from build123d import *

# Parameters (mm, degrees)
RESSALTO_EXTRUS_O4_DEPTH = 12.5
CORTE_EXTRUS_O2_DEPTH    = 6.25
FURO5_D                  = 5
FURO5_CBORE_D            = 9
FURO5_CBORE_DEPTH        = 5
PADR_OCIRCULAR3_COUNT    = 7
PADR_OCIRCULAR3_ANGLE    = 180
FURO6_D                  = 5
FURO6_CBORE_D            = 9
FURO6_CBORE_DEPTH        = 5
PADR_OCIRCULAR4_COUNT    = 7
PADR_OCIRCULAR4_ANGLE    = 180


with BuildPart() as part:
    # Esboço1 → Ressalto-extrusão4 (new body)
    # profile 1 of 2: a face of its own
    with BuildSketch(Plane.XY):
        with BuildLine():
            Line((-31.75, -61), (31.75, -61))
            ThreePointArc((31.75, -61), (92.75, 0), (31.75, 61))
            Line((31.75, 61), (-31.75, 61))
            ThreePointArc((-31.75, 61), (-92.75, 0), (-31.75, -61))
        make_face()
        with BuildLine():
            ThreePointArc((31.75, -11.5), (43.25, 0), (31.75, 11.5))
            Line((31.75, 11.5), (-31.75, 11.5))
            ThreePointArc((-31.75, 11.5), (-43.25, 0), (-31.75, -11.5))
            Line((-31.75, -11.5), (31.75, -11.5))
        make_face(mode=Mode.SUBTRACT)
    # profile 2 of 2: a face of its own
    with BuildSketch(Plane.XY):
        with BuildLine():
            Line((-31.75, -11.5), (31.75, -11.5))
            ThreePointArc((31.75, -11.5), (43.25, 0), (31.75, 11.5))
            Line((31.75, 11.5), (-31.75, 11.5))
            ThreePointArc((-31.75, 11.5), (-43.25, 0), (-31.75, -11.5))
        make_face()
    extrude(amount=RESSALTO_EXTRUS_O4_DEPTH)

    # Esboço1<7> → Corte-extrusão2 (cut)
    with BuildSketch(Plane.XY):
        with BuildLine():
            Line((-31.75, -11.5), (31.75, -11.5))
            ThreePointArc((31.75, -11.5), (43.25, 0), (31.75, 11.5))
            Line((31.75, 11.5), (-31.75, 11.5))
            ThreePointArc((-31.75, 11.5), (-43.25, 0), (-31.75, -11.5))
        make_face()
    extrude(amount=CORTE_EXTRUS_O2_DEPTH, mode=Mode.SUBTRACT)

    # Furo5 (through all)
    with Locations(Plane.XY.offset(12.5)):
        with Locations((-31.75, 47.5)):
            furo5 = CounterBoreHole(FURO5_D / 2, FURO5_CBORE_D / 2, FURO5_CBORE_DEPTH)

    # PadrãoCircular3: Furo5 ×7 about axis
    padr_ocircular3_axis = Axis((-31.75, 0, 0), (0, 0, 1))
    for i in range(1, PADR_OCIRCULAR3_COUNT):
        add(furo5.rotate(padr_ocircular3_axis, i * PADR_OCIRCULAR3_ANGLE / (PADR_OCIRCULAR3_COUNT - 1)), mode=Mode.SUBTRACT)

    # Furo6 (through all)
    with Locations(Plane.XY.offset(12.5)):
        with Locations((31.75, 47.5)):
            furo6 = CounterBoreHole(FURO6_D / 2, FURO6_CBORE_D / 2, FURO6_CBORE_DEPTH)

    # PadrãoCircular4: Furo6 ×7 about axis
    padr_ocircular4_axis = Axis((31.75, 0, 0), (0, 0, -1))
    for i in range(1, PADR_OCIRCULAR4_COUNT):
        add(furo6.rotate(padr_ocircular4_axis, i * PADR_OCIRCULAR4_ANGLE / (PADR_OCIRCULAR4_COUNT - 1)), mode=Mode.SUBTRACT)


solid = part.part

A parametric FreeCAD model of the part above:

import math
import FreeCAD as App
import Part
import Sketcher
from FreeCAD import Vector

doc = App.newDocument("Part")
params = doc.addObject("Spreadsheet::Sheet", "Params")
for row, (alias, value) in enumerate([
    ("sketch1_radius", "61 mm"),
    ("sketch1_width", "63.5 mm"),
    ("pad1_length", "12.5 mm"),
    ("sketch2_radius", "11.5 mm"),
    ("sketch2_width", "63.5 mm"),
    ("pocket1_length", "6.25 mm"),
    ("sketch3_diameter", "5 mm"),
    ("hole_diameter", "5 mm"),
    ("hole_cbore_diameter", "9 mm"),
    ("hole_cbore_depth", "5 mm"),
    ("sketch4_diameter", "5 mm"),
    ("hole2_diameter", "5 mm"),
    ("hole2_cbore_diameter", "9 mm"),
    ("hole2_cbore_depth", "5 mm"),
], start=1):
    params.set(f"A{row}", alias)
    params.set(f"B{row}", "=" + value)
    params.setAlias(f"B{row}", alias)

body = doc.addObject("PartDesign::Body", "Body")

sketch1 = doc.addObject("Sketcher::SketchObject", "Sketch")
body.addObject(sketch1)
sketch1.AttachmentSupport = (doc.XY_Plane, [""])
sketch1.MapMode = "FlatFace"
sketch1.addGeometry(Part.LineSegment(Vector(-31.75, -61, 0), Vector(31.75, -61, 0)), False)
sketch1.addGeometry(Part.ArcOfCircle(Part.Circle(Vector(31.75, 0, 0), Vector(0, 0, 1), 61), math.radians(-90), math.radians(90)), False)
sketch1.addGeometry(Part.LineSegment(Vector(31.75, 61, 0), Vector(-31.75, 61, 0)), False)
sketch1.addGeometry(Part.ArcOfCircle(Part.Circle(Vector(-31.75, 0, 0), Vector(0, 0, 1), 61), math.radians(90), math.radians(270)), False)
sketch1.addConstraint(Sketcher.Constraint("Tangent", 0, 2, 1, 1))
sketch1.addConstraint(Sketcher.Constraint("Tangent", 1, 2, 2, 1))
sketch1.addConstraint(Sketcher.Constraint("Tangent", 2, 2, 3, 1))
sketch1.addConstraint(Sketcher.Constraint("Tangent", 3, 2, 0, 1))
sketch1.addConstraint(Sketcher.Constraint("Horizontal", 0))
sketch1.addConstraint(Sketcher.Constraint("Horizontal", 2))
sketch1.addConstraint(Sketcher.Constraint("Symmetric", 1, 3, 3, 3, -1, 1))
sketch1.addConstraint(Sketcher.Constraint("Radius", 1, 61.0))
sketch1.addConstraint(Sketcher.Constraint("DistanceX", 0, 1, 0, 2, 63.5))
sketch1.setExpression("Constraints[7]", "Params.sketch1_radius")
sketch1.setExpression("Constraints[8]", "Params.sketch1_width")
pad1 = doc.addObject("PartDesign::Pad", "Pad")
body.addObject(pad1)
pad1.Profile = sketch1
pad1.setExpression("Length", "Params.pad1_length")

sketch2 = doc.addObject("Sketcher::SketchObject", "Sketch001")
body.addObject(sketch2)
sketch2.AttachmentSupport = (doc.XY_Plane, [""])
sketch2.MapMode = "FlatFace"
sketch2.addGeometry(Part.LineSegment(Vector(-31.75, -11.5, 0), Vector(31.75, -11.5, 0)), False)
sketch2.addGeometry(Part.ArcOfCircle(Part.Circle(Vector(31.75, 0, 0), Vector(0, 0, 1), 11.5), math.radians(-90), math.radians(90)), False)
sketch2.addGeometry(Part.LineSegment(Vector(31.75, 11.5, 0), Vector(-31.75, 11.5, 0)), False)
sketch2.addGeometry(Part.ArcOfCircle(Part.Circle(Vector(-31.75, 0, 0), Vector(0, 0, 1), 11.5), math.radians(90), math.radians(270)), False)
sketch2.addConstraint(Sketcher.Constraint("Tangent", 0, 2, 1, 1))
sketch2.addConstraint(Sketcher.Constraint("Tangent", 1, 2, 2, 1))
sketch2.addConstraint(Sketcher.Constraint("Tangent", 2, 2, 3, 1))
sketch2.addConstraint(Sketcher.Constraint("Tangent", 3, 2, 0, 1))
sketch2.addConstraint(Sketcher.Constraint("Horizontal", 0))
sketch2.addConstraint(Sketcher.Constraint("Horizontal", 2))
sketch2.addConstraint(Sketcher.Constraint("Symmetric", 1, 3, 3, 3, -1, 1))
sketch2.addConstraint(Sketcher.Constraint("Radius", 1, 11.5))
sketch2.addConstraint(Sketcher.Constraint("DistanceX", 0, 1, 0, 2, 63.5))
sketch2.setExpression("Constraints[7]", "Params.sketch2_radius")
sketch2.setExpression("Constraints[8]", "Params.sketch2_width")
pocket1 = doc.addObject("PartDesign::Pocket", "Pocket")
body.addObject(pocket1)
pocket1.Profile = sketch2
pocket1.setExpression("Length", "Params.pocket1_length")
pocket1.Reversed = True

sketch3 = doc.addObject("Sketcher::SketchObject", "Sketch002")
body.addObject(sketch3)
sketch3.AttachmentSupport = (doc.XY_Plane, [""])
sketch3.MapMode = "FlatFace"
sketch3.AttachmentOffset = App.Placement(Vector(0, 0, 12.5), App.Rotation())
sketch3.addGeometry(Part.Circle(Vector(-31.75, 47.5, 0), Vector(0, 0, 1), 2.5), False)
sketch3.addConstraint(Sketcher.Constraint("Diameter", 0, 5.0))
sketch3.addConstraint(Sketcher.Constraint("DistanceY", -1, 1, 0, 3, 47.5))
sketch3.addConstraint(Sketcher.Constraint("DistanceX", 0, 3, -1, 1, 31.75))
sketch3.setExpression("Constraints[0]", "Params.sketch3_diameter")
doc.recompute()
hole = doc.addObject("PartDesign::Hole", "Hole")
body.addObject(hole)
hole.Profile = sketch3
hole.ThreadType = "None"
hole.setExpression("Diameter", "Params.hole_diameter")
hole.DepthType = "ThroughAll"
hole.HoleCutType = "Counterbore"
hole.setExpression("HoleCutDiameter", "Params.hole_cbore_diameter")
hole.setExpression("HoleCutDepth", "Params.hole_cbore_depth")
doc.recompute()

datumline = doc.addObject("PartDesign::Line", "DatumLine")
body.addObject(datumline)
datumline.Placement = App.Placement(Vector(-31.75, 0, 0), App.Rotation(Vector(0, 0, 1), Vector(0, 0, 1)))
polarpattern = doc.addObject("PartDesign::PolarPattern", "PolarPattern")
body.addObject(polarpattern)
polarpattern.Originals = [hole]
polarpattern.Axis = (datumline, [""])
polarpattern.Angle = 180
polarpattern.Occurrences = 7
body.Tip = polarpattern

sketch4 = doc.addObject("Sketcher::SketchObject", "Sketch003")
body.addObject(sketch4)
sketch4.AttachmentSupport = (doc.XY_Plane, [""])
sketch4.MapMode = "FlatFace"
sketch4.AttachmentOffset = App.Placement(Vector(0, 0, 12.5), App.Rotation())
sketch4.addGeometry(Part.Circle(Vector(31.75, 47.5, 0), Vector(0, 0, 1), 2.5), False)
sketch4.addConstraint(Sketcher.Constraint("Diameter", 0, 5.0))
sketch4.addConstraint(Sketcher.Constraint("DistanceY", -1, 1, 0, 3, 47.5))
sketch4.addConstraint(Sketcher.Constraint("DistanceX", -1, 1, 0, 3, 31.75))
sketch4.setExpression("Constraints[0]", "Params.sketch4_diameter")
doc.recompute()
hole2 = doc.addObject("PartDesign::Hole", "Hole001")
body.addObject(hole2)
hole2.Profile = sketch4
hole2.ThreadType = "None"
hole2.setExpression("Diameter", "Params.hole2_diameter")
hole2.DepthType = "ThroughAll"
hole2.HoleCutType = "Counterbore"
hole2.setExpression("HoleCutDiameter", "Params.hole2_cbore_diameter")
hole2.setExpression("HoleCutDepth", "Params.hole2_cbore_depth")
doc.recompute()

datumline2 = doc.addObject("PartDesign::Line", "DatumLine001")
body.addObject(datumline2)
datumline2.Placement = App.Placement(Vector(31.75, 0, 0), App.Rotation(Vector(0, 0, 1), Vector(0, 0, -1)))
polarpattern2 = doc.addObject("PartDesign::PolarPattern", "PolarPattern001")
body.addObject(polarpattern2)
polarpattern2.Originals = [hole2]
polarpattern2.Axis = (datumline2, [""])
polarpattern2.Angle = 180
polarpattern2.Occurrences = 7
body.Tip = polarpattern2

doc.recompute()
